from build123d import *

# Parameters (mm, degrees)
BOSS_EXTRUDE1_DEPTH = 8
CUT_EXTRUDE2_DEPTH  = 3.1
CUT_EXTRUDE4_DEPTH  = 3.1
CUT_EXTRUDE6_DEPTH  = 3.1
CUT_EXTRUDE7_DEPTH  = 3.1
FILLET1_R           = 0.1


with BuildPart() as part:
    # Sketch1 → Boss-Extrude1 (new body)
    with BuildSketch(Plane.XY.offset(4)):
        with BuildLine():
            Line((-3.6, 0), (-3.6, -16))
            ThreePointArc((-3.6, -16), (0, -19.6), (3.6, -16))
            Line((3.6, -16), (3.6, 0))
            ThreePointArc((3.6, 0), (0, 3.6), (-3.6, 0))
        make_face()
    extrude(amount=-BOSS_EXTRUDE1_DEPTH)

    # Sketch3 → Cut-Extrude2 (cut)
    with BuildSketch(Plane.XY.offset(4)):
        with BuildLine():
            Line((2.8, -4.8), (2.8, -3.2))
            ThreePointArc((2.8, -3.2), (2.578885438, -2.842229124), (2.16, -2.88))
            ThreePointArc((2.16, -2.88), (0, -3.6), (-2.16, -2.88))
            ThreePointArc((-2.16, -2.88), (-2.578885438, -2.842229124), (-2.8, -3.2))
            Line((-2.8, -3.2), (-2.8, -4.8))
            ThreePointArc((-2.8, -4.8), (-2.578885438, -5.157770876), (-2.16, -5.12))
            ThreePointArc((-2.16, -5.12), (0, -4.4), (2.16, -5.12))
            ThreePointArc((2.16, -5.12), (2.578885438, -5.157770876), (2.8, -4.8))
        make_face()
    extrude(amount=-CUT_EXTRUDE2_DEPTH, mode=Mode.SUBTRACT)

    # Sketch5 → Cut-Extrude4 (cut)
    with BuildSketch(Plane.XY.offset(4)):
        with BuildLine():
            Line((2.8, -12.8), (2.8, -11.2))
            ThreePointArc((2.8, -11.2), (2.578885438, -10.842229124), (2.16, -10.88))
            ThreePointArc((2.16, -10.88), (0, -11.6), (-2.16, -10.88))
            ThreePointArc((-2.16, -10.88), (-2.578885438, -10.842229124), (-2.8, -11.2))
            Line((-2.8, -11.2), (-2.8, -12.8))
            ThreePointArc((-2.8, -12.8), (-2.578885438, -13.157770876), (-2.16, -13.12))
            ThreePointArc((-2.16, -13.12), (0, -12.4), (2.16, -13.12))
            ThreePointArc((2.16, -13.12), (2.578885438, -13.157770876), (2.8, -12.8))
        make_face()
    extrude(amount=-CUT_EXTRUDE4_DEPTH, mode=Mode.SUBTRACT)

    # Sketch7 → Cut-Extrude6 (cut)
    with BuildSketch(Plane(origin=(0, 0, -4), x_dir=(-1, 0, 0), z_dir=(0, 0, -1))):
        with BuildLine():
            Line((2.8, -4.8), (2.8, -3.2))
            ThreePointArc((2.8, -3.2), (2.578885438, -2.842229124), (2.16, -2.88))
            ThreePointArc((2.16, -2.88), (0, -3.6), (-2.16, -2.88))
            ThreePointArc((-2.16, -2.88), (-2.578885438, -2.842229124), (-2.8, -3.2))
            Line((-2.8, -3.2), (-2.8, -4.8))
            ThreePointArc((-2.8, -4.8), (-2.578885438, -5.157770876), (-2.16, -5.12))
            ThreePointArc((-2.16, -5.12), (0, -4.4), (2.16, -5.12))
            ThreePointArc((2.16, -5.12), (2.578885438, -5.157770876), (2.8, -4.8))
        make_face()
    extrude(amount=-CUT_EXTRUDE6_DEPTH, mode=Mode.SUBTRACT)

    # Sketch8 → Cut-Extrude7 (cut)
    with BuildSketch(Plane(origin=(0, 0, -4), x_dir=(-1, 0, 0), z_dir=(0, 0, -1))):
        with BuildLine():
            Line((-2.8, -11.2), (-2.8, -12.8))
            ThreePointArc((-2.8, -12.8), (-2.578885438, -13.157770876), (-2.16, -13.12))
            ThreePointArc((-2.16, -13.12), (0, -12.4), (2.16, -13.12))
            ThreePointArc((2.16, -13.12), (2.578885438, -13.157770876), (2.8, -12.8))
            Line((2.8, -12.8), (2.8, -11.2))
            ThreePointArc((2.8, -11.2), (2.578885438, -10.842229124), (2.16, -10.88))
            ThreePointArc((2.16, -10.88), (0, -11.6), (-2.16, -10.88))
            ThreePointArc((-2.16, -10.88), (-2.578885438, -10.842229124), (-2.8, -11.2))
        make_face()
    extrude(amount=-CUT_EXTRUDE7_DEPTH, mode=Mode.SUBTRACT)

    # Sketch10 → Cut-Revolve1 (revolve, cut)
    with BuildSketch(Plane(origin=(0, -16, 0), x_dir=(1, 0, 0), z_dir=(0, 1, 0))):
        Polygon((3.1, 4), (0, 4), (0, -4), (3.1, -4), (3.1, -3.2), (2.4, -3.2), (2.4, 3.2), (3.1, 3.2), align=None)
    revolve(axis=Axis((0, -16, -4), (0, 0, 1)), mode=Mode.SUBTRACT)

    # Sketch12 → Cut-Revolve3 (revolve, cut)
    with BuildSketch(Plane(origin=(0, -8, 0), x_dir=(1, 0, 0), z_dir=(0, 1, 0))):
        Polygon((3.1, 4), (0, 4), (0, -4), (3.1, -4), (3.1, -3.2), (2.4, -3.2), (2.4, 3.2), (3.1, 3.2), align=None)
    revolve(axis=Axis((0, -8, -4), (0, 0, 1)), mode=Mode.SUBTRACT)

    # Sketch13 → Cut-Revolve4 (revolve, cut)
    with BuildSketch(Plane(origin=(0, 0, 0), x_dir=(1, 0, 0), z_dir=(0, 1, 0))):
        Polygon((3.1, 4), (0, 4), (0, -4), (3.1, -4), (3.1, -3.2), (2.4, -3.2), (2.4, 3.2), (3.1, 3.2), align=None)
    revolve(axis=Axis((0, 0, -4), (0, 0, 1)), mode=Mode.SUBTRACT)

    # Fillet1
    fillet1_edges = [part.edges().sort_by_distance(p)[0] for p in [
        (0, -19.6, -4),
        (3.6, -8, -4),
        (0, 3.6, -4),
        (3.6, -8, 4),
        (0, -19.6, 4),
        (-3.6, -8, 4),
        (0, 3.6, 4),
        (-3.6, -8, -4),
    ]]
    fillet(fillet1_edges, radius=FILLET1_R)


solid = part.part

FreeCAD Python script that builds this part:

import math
import FreeCAD as App
import Part
import Sketcher

V = App.Vector
Q = App.Units.Quantity


def edges_at(feature, points):
    """Names of the edges that pass closest to the given points."""
    edges = feature.Shape.Edges
    near = lambda p: min(range(len(edges)), key=lambda i: edges[i].distToShape(Part.Vertex(*p))[0])
    return sorted({f"Edge{near(p) + 1}" for p in points})


def add_polygon(sketch, points):
    """Adds a closed chain of lines whose ends are joined by coincident constraints."""
    first, n = sketch.GeometryCount, len(points)
    for a, b in zip(points, points[1:] + points[:1]):
        sketch.addGeometry(Part.LineSegment(App.Vector(*a, 0), App.Vector(*b, 0)), False)
    for i in range(n):
        sketch.addConstraint(Sketcher.Constraint("Coincident", first + i, 2, first + (i + 1) % n, 1))

doc = App.newDocument("Part")
body = doc.addObject("PartDesign::Body", "Body")

sketch1 = doc.addObject("Sketcher::SketchObject", "Sketch")
body.addObject(sketch1)
sketch1.AttachmentSupport = (doc.XY_Plane, [""])
sketch1.MapMode = "FlatFace"
sketch1.AttachmentOffset = App.Placement(V(0, 0, 4), App.Rotation())
sketch1.addGeometry(Part.LineSegment(V(-3.6, 0, 0), V(-3.6, -16, 0)), False)
sketch1.addGeometry(Part.ArcOfCircle(Part.Circle(V(0, -16, 0), V(0, 0, 1), 3.6), math.radians(180), math.radians(360)), False)
sketch1.addGeometry(Part.LineSegment(V(3.6, -16, 0), V(3.6, 0, 0)), False)
sketch1.addGeometry(Part.ArcOfCircle(Part.Circle(V(0, 0, 0), V(0, 0, 1), 3.6), math.radians(0), math.radians(180)), False)
sketch1.addConstraint(Sketcher.Constraint("Tangent", 0, 2, 1, 1))
sketch1.addConstraint(Sketcher.Constraint("Tangent", 1, 2, 2, 1))
sketch1.addConstraint(Sketcher.Constraint("Tangent", 2, 2, 3, 1))
sketch1.addConstraint(Sketcher.Constraint("Tangent", 3, 2, 0, 1))
sketch1.addConstraint(Sketcher.Constraint("Vertical", 0))
sketch1.addConstraint(Sketcher.Constraint("Vertical", 2))
sketch1.addConstraint(Sketcher.Constraint("Coincident", 3, 3, -1, 1))
sketch1.addConstraint(Sketcher.Constraint("Radius", 1, Q("3.6 mm")))
sketch1.addConstraint(Sketcher.Constraint("DistanceY", 0, 2, 0, 1, Q("16 mm")))
pad1 = doc.addObject("PartDesign::Pad", "Pad")
body.addObject(pad1)
pad1.Profile = sketch1
pad1.Length = 8
pad1.Reversed = True

sketch2 = doc.addObject("Sketcher::SketchObject", "Sketch001")
body.addObject(sketch2)
sketch2.AttachmentSupport = (doc.XY_Plane, [""])
sketch2.MapMode = "FlatFace"
sketch2.AttachmentOffset = App.Placement(V(0, 0, 4), App.Rotation())
sketch2.addGeometry(Part.LineSegment(V(2.8, -4.8, 0), V(2.8, -3.2, 0)), False)
sketch2.addGeometry(Part.ArcOfCircle(Part.Circle(V(2.4, -3.2, 0), V(0, 0, 1), 0.4), math.radians(0), math.radians(127)), False)
sketch2.addGeometry(Part.ArcOfCircle(Part.Circle(V(0, 0, 0), V(0, 0, 1), 3.6), math.radians(-127), math.radians(-53)), False)
sketch2.addGeometry(Part.ArcOfCircle(Part.Circle(V(-2.4, -3.2, 0), V(0, 0, 1), 0.4), math.radians(53), math.radians(180)), False)
sketch2.addGeometry(Part.LineSegment(V(-2.8, -3.2, 0), V(-2.8, -4.8, 0)), False)
sketch2.addGeometry(Part.ArcOfCircle(Part.Circle(V(-2.4, -4.8, 0), V(0, 0, 1), 0.4), math.radians(-180), math.radians(-53)), False)
sketch2.addGeometry(Part.ArcOfCircle(Part.Circle(V(0, -8, 0), V(0, 0, 1), 3.6), math.radians(53), math.radians(127)), False)
sketch2.addGeometry(Part.ArcOfCircle(Part.Circle(V(2.4, -4.8, 0), V(0, 0, 1), 0.4), math.radians(-127), math.radians(0)), False)
sketch2.addConstraint(Sketcher.Constraint("Tangent", 0, 2, 1, 1))
sketch2.addConstraint(Sketcher.Constraint("Tangent", 1, 2, 2, 2))
sketch2.addConstraint(Sketcher.Constraint("Tangent", 2, 1, 3, 1))
sketch2.addConstraint(Sketcher.Constraint("Tangent", 3, 2, 4, 1))
sketch2.addConstraint(Sketcher.Constraint("Tangent", 4, 2, 5, 1))
sketch2.addConstraint(Sketcher.Constraint("Tangent", 5, 2, 6, 2))
sketch2.addConstraint(Sketcher.Constraint("Tangent", 6, 1, 7, 1))
sketch2.addConstraint(Sketcher.Constraint("Tangent", 7, 2, 0, 1))
sketch2.addConstraint(Sketcher.Constraint("Vertical", 0))
sketch2.addConstraint(Sketcher.Constraint("Vertical", 4))
sketch2.addConstraint(Sketcher.Constraint("Coincident", 2, 3, -1, 1))
sketch2.addConstraint(Sketcher.Constraint("Equal", 1, 3))
sketch2.addConstraint(Sketcher.Constraint("Equal", 3, 5))
sketch2.addConstraint(Sketcher.Constraint("Equal", 2, 6))
sketch2.addConstraint(Sketcher.Constraint("Equal", 5, 7))
sketch2.addConstraint(Sketcher.Constraint("Symmetric", 5, 3, 7, 3, -2))
sketch2.addConstraint(Sketcher.Constraint("Radius", 1, Q("0.4 mm")))
sketch2.addConstraint(Sketcher.Constraint("Radius", 2, Q("3.6 mm")))
sketch2.addConstraint(Sketcher.Constraint("DistanceY", 0, 1, 0, 2, Q("1.6 mm")))
sketch2.addConstraint(Sketcher.Constraint("DistanceY", 6, 3, -1, 1, Q("8 mm")))
pocket1 = doc.addObject("PartDesign::Pocket", "Pocket")
body.addObject(pocket1)
pocket1.Profile = sketch2
pocket1.Length = 3.1

sketch3 = doc.addObject("Sketcher::SketchObject", "Sketch002")
body.addObject(sketch3)
sketch3.AttachmentSupport = (doc.XY_Plane, [""])
sketch3.MapMode = "FlatFace"
sketch3.AttachmentOffset = App.Placement(V(0, 0, 4), App.Rotation())
sketch3.addGeometry(Part.LineSegment(V(2.8, -12.8, 0), V(2.8, -11.2, 0)), False)
sketch3.addGeometry(Part.ArcOfCircle(Part.Circle(V(2.4, -11.2, 0), V(0, 0, 1), 0.4), math.radians(0), math.radians(127)), False)
sketch3.addGeometry(Part.ArcOfCircle(Part.Circle(V(0, -8, 0), V(0, 0, 1), 3.6), math.radians(-127), math.radians(-53)), False)
sketch3.addGeometry(Part.ArcOfCircle(Part.Circle(V(-2.4, -11.2, 0), V(0, 0, 1), 0.4), math.radians(53), math.radians(180)), False)
sketch3.addGeometry(Part.LineSegment(V(-2.8, -11.2, 0), V(-2.8, -12.8, 0)), False)
sketch3.addGeometry(Part.ArcOfCircle(Part.Circle(V(-2.4, -12.8, 0), V(0, 0, 1), 0.4), math.radians(-180), math.radians(-53)), False)
sketch3.addGeometry(Part.ArcOfCircle(Part.Circle(V(0, -16, 0), V(0, 0, 1), 3.6), math.radians(53), math.radians(127)), False)
sketch3.addGeometry(Part.ArcOfCircle(Part.Circle(V(2.4, -12.8, 0), V(0, 0, 1), 0.4), math.radians(-127), math.radians(0)), False)
sketch3.addConstraint(Sketcher.Constraint("Tangent", 0, 2, 1, 1))
sketch3.addConstraint(Sketcher.Constraint("Tangent", 1, 2, 2, 2))
sketch3.addConstraint(Sketcher.Constraint("Tangent", 2, 1, 3, 1))
sketch3.addConstraint(Sketcher.Constraint("Tangent", 3, 2, 4, 1))
sketch3.addConstraint(Sketcher.Constraint("Tangent", 4, 2, 5, 1))
sketch3.addConstraint(Sketcher.Constraint("Tangent", 5, 2, 6, 2))
sketch3.addConstraint(Sketcher.Constraint("Tangent", 6, 1, 7, 1))
sketch3.addConstraint(Sketcher.Constraint("Tangent", 7, 2, 0, 1))
sketch3.addConstraint(Sketcher.Constraint("Vertical", 0))
sketch3.addConstraint(Sketcher.Constraint("Vertical", 4))
sketch3.addConstraint(Sketcher.Constraint("Equal", 1, 3))
sketch3.addConstraint(Sketcher.Constraint("Equal", 3, 5))
sketch3.addConstraint(Sketcher.Constraint("Equal", 2, 6))
sketch3.addConstraint(Sketcher.Constraint("Equal", 5, 7))
sketch3.addConstraint(Sketcher.Constraint("Symmetric", 1, 3, 3, 3, -2))
sketch3.addConstraint(Sketcher.Constraint("PointOnObject", 6, 3, -2))
sketch3.addConstraint(Sketcher.Constraint("Radius", 1, Q("0.4 mm")))
sketch3.addConstraint(Sketcher.Constraint("Radius", 2, Q("3.6 mm")))
sketch3.addConstraint(Sketcher.Constraint("DistanceY", 0, 1, 0, 2, Q("1.6 mm")))
sketch3.addConstraint(Sketcher.Constraint("DistanceY", 2, 3, -1, 1, Q("8 mm")))
sketch3.addConstraint(Sketcher.Constraint("DistanceY", 6, 3, -1, 1, Q("16 mm")))
pocket2 = doc.addObject("PartDesign::Pocket", "Pocket001")
body.addObject(pocket2)
pocket2.Profile = sketch3
pocket2.Length = 3.1

sketch4 = doc.addObject("Sketcher::SketchObject", "Sketch003")
body.addObject(sketch4)
sketch4.AttachmentSupport = (doc.XY_Plane, [""])
sketch4.MapMode = "FlatFace"
sketch4.AttachmentOffset = App.Placement(V(0, 0, -4), App.Rotation())
sketch4.addGeometry(Part.LineSegment(V(-2.8, -4.8, 0), V(-2.8, -3.2, 0)), False)
sketch4.addGeometry(Part.ArcOfCircle(Part.Circle(V(-2.4, -3.2, 0), V(0, 0, 1), 0.4), math.radians(53), math.radians(180)), False)
sketch4.addGeometry(Part.ArcOfCircle(Part.Circle(V(0, 0, 0), V(0, 0, 1), 3.6), math.radians(-127), math.radians(-53)), False)
sketch4.addGeometry(Part.ArcOfCircle(Part.Circle(V(2.4, -3.2, 0), V(0, 0, 1), 0.4), math.radians(0), math.radians(127)), False)
sketch4.addGeometry(Part.LineSegment(V(2.8, -3.2, 0), V(2.8, -4.8, 0)), False)
sketch4.addGeometry(Part.ArcOfCircle(Part.Circle(V(2.4, -4.8, 0), V(0, 0, 1), 0.4), math.radians(-127), math.radians(0)), False)
sketch4.addGeometry(Part.ArcOfCircle(Part.Circle(V(0, -8, 0), V(0, 0, 1), 3.6), math.radians(53), math.radians(127)), False)
sketch4.addGeometry(Part.ArcOfCircle(Part.Circle(V(-2.4, -4.8, 0), V(0, 0, 1), 0.4), math.radians(-180), math.radians(-53)), False)
sketch4.addConstraint(Sketcher.Constraint("Tangent", 0, 2, 1, 2))
sketch4.addConstraint(Sketcher.Constraint("Tangent", 1, 1, 2, 1))
sketch4.addConstraint(Sketcher.Constraint("Tangent", 2, 2, 3, 2))
sketch4.addConstraint(Sketcher.Constraint("Tangent", 3, 1, 4, 1))
sketch4.addConstraint(Sketcher.Constraint("Tangent", 4, 2, 5, 2))
sketch4.addConstraint(Sketcher.Constraint("Tangent", 5, 1, 6, 1))
sketch4.addConstraint(Sketcher.Constraint("Tangent", 6, 2, 7, 2))
sketch4.addConstraint(Sketcher.Constraint("Tangent", 7, 1, 0, 1))
sketch4.addConstraint(Sketcher.Constraint("Vertical", 0))
sketch4.addConstraint(Sketcher.Constraint("Vertical", 4))
sketch4.addConstraint(Sketcher.Constraint("Coincident", 2, 3, -1, 1))
sketch4.addConstraint(Sketcher.Constraint("Equal", 1, 3))
sketch4.addConstraint(Sketcher.Constraint("Equal", 3, 5))
sketch4.addConstraint(Sketcher.Constraint("Equal", 2, 6))
sketch4.addConstraint(Sketcher.Constraint("Equal", 5, 7))
sketch4.addConstraint(Sketcher.Constraint("Symmetric", 5, 3, 7, 3, -2))
sketch4.addConstraint(Sketcher.Constraint("Radius", 1, Q("0.4 mm")))
sketch4.addConstraint(Sketcher.Constraint("Radius", 2, Q("3.6 mm")))
sketch4.addConstraint(Sketcher.Constraint("DistanceY", 0, 1, 0, 2, Q("1.6 mm")))
sketch4.addConstraint(Sketcher.Constraint("DistanceY", 6, 3, -1, 1, Q("8 mm")))
pocket3 = doc.addObject("PartDesign::Pocket", "Pocket002")
body.addObject(pocket3)
pocket3.Profile = sketch4
pocket3.Length = 3.1
pocket3.Reversed = True

sketch5 = doc.addObject("Sketcher::SketchObject", "Sketch004")
body.addObject(sketch5)
sketch5.AttachmentSupport = (doc.XY_Plane, [""])
sketch5.MapMode = "FlatFace"
sketch5.AttachmentOffset = App.Placement(V(0, 0, -4), App.Rotation())
sketch5.addGeometry(Part.LineSegment(V(2.8, -11.2, 0), V(2.8, -12.8, 0)), False)
sketch5.addGeometry(Part.ArcOfCircle(Part.Circle(V(2.4, -12.8, 0), V(0, 0, 1), 0.4), math.radians(-127), math.radians(0)), False)
sketch5.addGeometry(Part.ArcOfCircle(Part.Circle(V(0, -16, 0), V(0, 0, 1), 3.6), math.radians(53), math.radians(127)), False)
sketch5.addGeometry(Part.ArcOfCircle(Part.Circle(V(-2.4, -12.8, 0), V(0, 0, 1), 0.4), math.radians(-180), math.radians(-53)), False)
sketch5.addGeometry(Part.LineSegment(V(-2.8, -12.8, 0), V(-2.8, -11.2, 0)), False)
sketch5.addGeometry(Part.ArcOfCircle(Part.Circle(V(-2.4, -11.2, 0), V(0, 0, 1), 0.4), math.radians(53), math.radians(180)), False)
sketch5.addGeometry(Part.ArcOfCircle(Part.Circle(V(0, -8, 0), V(0, 0, 1), 3.6), math.radians(-127), math.radians(-53)), False)
sketch5.addGeometry(Part.ArcOfCircle(Part.Circle(V(2.4, -11.2, 0), V(0, 0, 1), 0.4), math.radians(0), math.radians(127)), False)
sketch5.addConstraint(Sketcher.Constraint("Tangent", 0, 2, 1, 2))
sketch5.addConstraint(Sketcher.Constraint("Tangent", 1, 1, 2, 1))
sketch5.addConstraint(Sketcher.Constraint("Tangent", 2, 2, 3, 2))
sketch5.addConstraint(Sketcher.Constraint("Tangent", 3, 1, 4, 1))
sketch5.addConstraint(Sketcher.Constraint("Tangent", 4, 2, 5, 2))
sketch5.addConstraint(Sketcher.Constraint("Tangent", 5, 1, 6, 1))
sketch5.addConstraint(Sketcher.Constraint("Tangent", 6, 2, 7, 2))
sketch5.addConstraint(Sketcher.Constraint("Tangent", 7, 1, 0, 1))
sketch5.addConstraint(Sketcher.Constraint("Vertical", 0))
sketch5.addConstraint(Sketcher.Constraint("Vertical", 4))
sketch5.addConstraint(Sketcher.Constraint("Equal", 1, 3))
sketch5.addConstraint(Sketcher.Constraint("Equal", 3, 5))
sketch5.addConstraint(Sketcher.Constraint("Equal", 2, 6))
sketch5.addConstraint(Sketcher.Constraint("Equal", 5, 7))
sketch5.addConstraint(Sketcher.Constraint("Symmetric", 1, 3, 3, 3, -2))
sketch5.addConstraint(Sketcher.Constraint("PointOnObject", 6, 3, -2))
sketch5.addConstraint(Sketcher.Constraint("Radius", 1, Q("0.4 mm")))
sketch5.addConstraint(Sketcher.Constraint("Radius", 2, Q("3.6 mm")))
sketch5.addConstraint(Sketcher.Constraint("DistanceY", 0, 2, 0, 1, Q("1.6 mm")))
sketch5.addConstraint(Sketcher.Constraint("DistanceY", 2, 3, -1, 1, Q("16 mm")))
sketch5.addConstraint(Sketcher.Constraint("DistanceY", 6, 3, -1, 1, Q("8 mm")))
pocket4 = doc.addObject("PartDesign::Pocket", "Pocket003")
body.addObject(pocket4)
pocket4.Profile = sketch5
pocket4.Length = 3.1
pocket4.Reversed = True

sketch6 = doc.addObject("Sketcher::SketchObject", "Sketch005")
body.addObject(sketch6)
sketch6.AttachmentSupport = (doc.XZ_Plane, [""])
sketch6.MapMode = "FlatFace"
sketch6.AttachmentOffset = App.Placement(V(0, 0, 16), App.Rotation())
add_polygon(sketch6, [(3.1, -4), (0, -4), (0, 4), (3.1, 4), (3.1, 3.2), (2.4, 3.2), (2.4, -3.2), (3.1, -3.2)])
sketch6.addConstraint(Sketcher.Constraint("Horizontal", 0))
sketch6.addConstraint(Sketcher.Constraint("Vertical", 1))
sketch6.addConstraint(Sketcher.Constraint("Horizontal", 2))
sketch6.addConstraint(Sketcher.Constraint("Vertical", 3))
sketch6.addConstraint(Sketcher.Constraint("Horizontal", 4))
sketch6.addConstraint(Sketcher.Constraint("Vertical", 5))
sketch6.addConstraint(Sketcher.Constraint("Horizontal", 6))
sketch6.addConstraint(Sketcher.Constraint("Vertical", 7))
sketch6.addConstraint(Sketcher.Constraint("Symmetric", 0, 2, 1, 2, -1, 1))
sketch6.addConstraint(Sketcher.Constraint("Symmetric", 3, 2, 6, 2, -1))
sketch6.addConstraint(Sketcher.Constraint("DistanceY", 1, 1, 1, 2, Q("8 mm")))
sketch6.addConstraint(Sketcher.Constraint("DistanceX", 0, 2, 0, 1, Q("3.1 mm")))
sketch6.addConstraint(Sketcher.Constraint("DistanceX", 4, 2, 4, 1, Q("0.7 mm")))
sketch6.addConstraint(Sketcher.Constraint("DistanceY", 3, 2, 3, 1, Q("0.8 mm")))
groove = doc.addObject("PartDesign::Groove", "Groove")
body.addObject(groove)
groove.Profile = sketch6
groove.ReferenceAxis = (sketch6, ["V_Axis"])
groove.Angle = 360

sketch7 = doc.addObject("Sketcher::SketchObject", "Sketch006")
body.addObject(sketch7)
sketch7.AttachmentSupport = (doc.XZ_Plane, [""])
sketch7.MapMode = "FlatFace"
sketch7.AttachmentOffset = App.Placement(V(0, 0, 8), App.Rotation())
add_polygon(sketch7, [(3.1, -4), (0, -4), (0, 4), (3.1, 4), (3.1, 3.2), (2.4, 3.2), (2.4, -3.2), (3.1, -3.2)])
sketch7.addConstraint(Sketcher.Constraint("Horizontal", 0))
sketch7.addConstraint(Sketcher.Constraint("Vertical", 1))
sketch7.addConstraint(Sketcher.Constraint("Horizontal", 2))
sketch7.addConstraint(Sketcher.Constraint("Vertical", 3))
sketch7.addConstraint(Sketcher.Constraint("Horizontal", 4))
sketch7.addConstraint(Sketcher.Constraint("Vertical", 5))
sketch7.addConstraint(Sketcher.Constraint("Horizontal", 6))
sketch7.addConstraint(Sketcher.Constraint("Vertical", 7))
sketch7.addConstraint(Sketcher.Constraint("Symmetric", 0, 2, 1, 2, -1, 1))
sketch7.addConstraint(Sketcher.Constraint("Symmetric", 3, 2, 6, 2, -1))
sketch7.addConstraint(Sketcher.Constraint("DistanceY", 1, 1, 1, 2, Q("8 mm")))
sketch7.addConstraint(Sketcher.Constraint("DistanceX", 0, 2, 0, 1, Q("3.1 mm")))
sketch7.addConstraint(Sketcher.Constraint("DistanceX", 4, 2, 4, 1, Q("0.7 mm")))
sketch7.addConstraint(Sketcher.Constraint("DistanceY", 3, 2, 3, 1, Q("0.8 mm")))
groove2 = doc.addObject("PartDesign::Groove", "Groove001")
body.addObject(groove2)
groove2.Profile = sketch7
groove2.ReferenceAxis = (sketch7, ["V_Axis"])
groove2.Angle = 360

sketch8 = doc.addObject("Sketcher::SketchObject", "Sketch007")
body.addObject(sketch8)
sketch8.AttachmentSupport = (doc.XZ_Plane, [""])
sketch8.MapMode = "FlatFace"
add_polygon(sketch8, [(3.1, -4), (0, -4), (0, 4), (3.1, 4), (3.1, 3.2), (2.4, 3.2), (2.4, -3.2), (3.1, -3.2)])
sketch8.addConstraint(Sketcher.Constraint("Horizontal", 0))
sketch8.addConstraint(Sketcher.Constraint("Vertical", 1))
sketch8.addConstraint(Sketcher.Constraint("Horizontal", 2))
sketch8.addConstraint(Sketcher.Constraint("Vertical", 3))
sketch8.addConstraint(Sketcher.Constraint("Horizontal", 4))
sketch8.addConstraint(Sketcher.Constraint("Vertical", 5))
sketch8.addConstraint(Sketcher.Constraint("Horizontal", 6))
sketch8.addConstraint(Sketcher.Constraint("Vertical", 7))
sketch8.addConstraint(Sketcher.Constraint("Symmetric", 0, 2, 1, 2, -1, 1))
sketch8.addConstraint(Sketcher.Constraint("Symmetric", 3, 2, 6, 2, -1))
sketch8.addConstraint(Sketcher.Constraint("DistanceY", 1, 1, 1, 2, Q("8 mm")))
sketch8.addConstraint(Sketcher.Constraint("DistanceX", 0, 2, 0, 1, Q("3.1 mm")))
sketch8.addConstraint(Sketcher.Constraint("DistanceX", 4, 2, 4, 1, Q("0.7 mm")))
sketch8.addConstraint(Sketcher.Constraint("DistanceY", 3, 2, 3, 1, Q("0.8 mm")))
groove3 = doc.addObject("PartDesign::Groove", "Groove002")
body.addObject(groove3)
groove3.Profile = sketch8
groove3.ReferenceAxis = (sketch8, ["V_Axis"])
groove3.Angle = 360
doc.recompute()

fillet = doc.addObject("PartDesign::Fillet", "Fillet")
body.addObject(fillet)
fillet.Base = (groove3, edges_at(groove3, [
    (0, -19.6, -4),
    (3.6, -8, -4),
    (0, 3.6, -4),
    (3.6, -8, 4),
    (0, -19.6, 4),
    (-3.6, -8, 4),
    (0, 3.6, 4),
    (-3.6, -8, -4),
]))
fillet.Radius = 0.1

doc.recompute()
